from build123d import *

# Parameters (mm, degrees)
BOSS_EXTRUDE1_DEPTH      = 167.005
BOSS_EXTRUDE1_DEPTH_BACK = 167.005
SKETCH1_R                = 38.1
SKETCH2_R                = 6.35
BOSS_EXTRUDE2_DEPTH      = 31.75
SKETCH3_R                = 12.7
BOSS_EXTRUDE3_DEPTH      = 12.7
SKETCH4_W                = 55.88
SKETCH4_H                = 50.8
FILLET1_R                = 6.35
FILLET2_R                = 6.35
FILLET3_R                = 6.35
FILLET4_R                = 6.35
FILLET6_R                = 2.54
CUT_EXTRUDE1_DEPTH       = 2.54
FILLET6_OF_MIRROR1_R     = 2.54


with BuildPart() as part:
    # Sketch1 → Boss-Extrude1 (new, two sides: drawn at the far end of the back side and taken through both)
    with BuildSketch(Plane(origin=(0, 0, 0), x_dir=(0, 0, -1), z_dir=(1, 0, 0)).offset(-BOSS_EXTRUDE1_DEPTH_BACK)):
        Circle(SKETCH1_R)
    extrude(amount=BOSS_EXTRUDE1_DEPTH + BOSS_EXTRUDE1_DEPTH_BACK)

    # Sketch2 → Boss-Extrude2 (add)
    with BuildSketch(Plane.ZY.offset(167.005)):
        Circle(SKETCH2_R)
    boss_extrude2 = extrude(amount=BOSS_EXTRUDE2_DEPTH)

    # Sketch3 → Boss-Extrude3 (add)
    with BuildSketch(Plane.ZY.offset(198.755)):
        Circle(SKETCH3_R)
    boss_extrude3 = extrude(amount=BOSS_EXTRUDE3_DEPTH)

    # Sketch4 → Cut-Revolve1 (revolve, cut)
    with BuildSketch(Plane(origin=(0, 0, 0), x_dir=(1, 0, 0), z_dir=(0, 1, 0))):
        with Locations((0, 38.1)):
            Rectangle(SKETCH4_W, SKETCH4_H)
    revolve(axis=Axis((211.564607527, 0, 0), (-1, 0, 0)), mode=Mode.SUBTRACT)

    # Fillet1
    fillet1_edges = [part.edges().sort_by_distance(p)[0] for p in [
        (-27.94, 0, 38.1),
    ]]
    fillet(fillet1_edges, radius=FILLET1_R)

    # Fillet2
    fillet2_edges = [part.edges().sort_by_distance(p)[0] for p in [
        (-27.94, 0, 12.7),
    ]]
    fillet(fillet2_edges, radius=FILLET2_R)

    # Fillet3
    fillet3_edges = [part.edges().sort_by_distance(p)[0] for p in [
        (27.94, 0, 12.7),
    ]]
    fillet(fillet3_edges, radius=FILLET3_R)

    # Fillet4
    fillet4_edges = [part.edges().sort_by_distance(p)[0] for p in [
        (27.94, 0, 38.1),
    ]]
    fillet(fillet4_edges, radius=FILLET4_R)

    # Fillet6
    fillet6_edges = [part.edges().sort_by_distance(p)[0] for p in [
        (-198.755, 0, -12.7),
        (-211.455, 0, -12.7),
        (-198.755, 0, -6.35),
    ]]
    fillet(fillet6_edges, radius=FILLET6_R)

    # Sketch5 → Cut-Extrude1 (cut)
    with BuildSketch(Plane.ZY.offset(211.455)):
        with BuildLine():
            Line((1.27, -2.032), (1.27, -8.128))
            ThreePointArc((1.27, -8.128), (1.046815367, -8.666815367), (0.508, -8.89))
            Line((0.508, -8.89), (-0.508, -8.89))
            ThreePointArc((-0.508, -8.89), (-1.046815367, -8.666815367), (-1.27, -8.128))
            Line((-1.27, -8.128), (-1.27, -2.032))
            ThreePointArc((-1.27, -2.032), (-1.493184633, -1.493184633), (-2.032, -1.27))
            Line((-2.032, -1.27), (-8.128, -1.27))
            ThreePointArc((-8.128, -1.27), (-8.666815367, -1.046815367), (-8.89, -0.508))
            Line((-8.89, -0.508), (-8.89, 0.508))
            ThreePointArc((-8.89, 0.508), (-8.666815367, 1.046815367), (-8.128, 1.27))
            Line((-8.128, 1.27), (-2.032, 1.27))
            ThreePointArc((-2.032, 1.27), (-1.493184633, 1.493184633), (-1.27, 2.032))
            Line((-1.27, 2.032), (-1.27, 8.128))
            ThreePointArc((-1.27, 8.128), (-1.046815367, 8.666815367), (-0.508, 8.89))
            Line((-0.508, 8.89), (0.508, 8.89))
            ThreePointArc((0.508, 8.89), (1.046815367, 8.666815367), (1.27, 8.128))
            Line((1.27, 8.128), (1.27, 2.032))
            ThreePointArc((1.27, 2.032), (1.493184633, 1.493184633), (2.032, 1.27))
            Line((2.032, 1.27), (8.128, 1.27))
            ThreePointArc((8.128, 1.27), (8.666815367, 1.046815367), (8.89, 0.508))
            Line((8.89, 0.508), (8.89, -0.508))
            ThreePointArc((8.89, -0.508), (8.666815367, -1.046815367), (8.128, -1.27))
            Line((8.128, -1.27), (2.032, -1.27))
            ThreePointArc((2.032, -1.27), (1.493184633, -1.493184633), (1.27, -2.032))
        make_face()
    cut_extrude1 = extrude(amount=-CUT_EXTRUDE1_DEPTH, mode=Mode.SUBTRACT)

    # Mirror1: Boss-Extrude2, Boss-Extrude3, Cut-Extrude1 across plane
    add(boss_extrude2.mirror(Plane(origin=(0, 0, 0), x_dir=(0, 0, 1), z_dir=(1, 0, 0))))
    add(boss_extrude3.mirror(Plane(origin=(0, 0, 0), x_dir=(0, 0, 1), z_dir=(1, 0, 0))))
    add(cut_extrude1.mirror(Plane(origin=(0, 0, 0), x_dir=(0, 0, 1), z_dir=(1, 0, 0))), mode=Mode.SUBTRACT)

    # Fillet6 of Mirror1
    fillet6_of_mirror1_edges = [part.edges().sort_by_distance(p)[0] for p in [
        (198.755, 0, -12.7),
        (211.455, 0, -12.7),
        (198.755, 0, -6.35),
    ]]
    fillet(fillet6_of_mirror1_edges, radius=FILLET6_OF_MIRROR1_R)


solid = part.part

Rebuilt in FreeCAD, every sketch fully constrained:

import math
import FreeCAD as App
import Part
import Sketcher
from FreeCAD import Vector
Q = App.Units.Quantity


def edges_at(feature, points):
    """Names of the edges that pass closest to the given points."""
    edges = feature.Shape.Edges
    near = lambda p: min(range(len(edges)), key=lambda i: edges[i].distToShape(Part.Vertex(*p))[0])
    return sorted({f"Edge{near(p) + 1}" for p in points})

doc = App.newDocument("Part")
params = doc.addObject("Spreadsheet::Sheet", "Params")
for row, (alias, value) in enumerate([
    ("sketch1_diameter", "3 in"),
    ("pad1_length", "6.575 in"),
    ("pad1_length2", "6.575 in"),
    ("sketch2_diameter", "0.5 in"),
    ("pad2_length", "1.25 in"),
    ("sketch3_diameter", "1 in"),
    ("pad3_length", "0.5 in"),
    ("sketch4_height", "2 in"),
    ("sketch4_width", "2.2 in"),
    ("groove_angle", "360 deg"),
    ("fillet_radius", "0.25 in"),
    ("fillet2_radius", "0.25 in"),
    ("fillet3_radius", "0.25 in"),
    ("fillet4_radius", "0.25 in"),
    ("fillet5_radius", "0.1 in"),
    ("sketch5_radius", "0.03 in"),
    ("sketch5_width", "0.24 in"),
    ("sketch5_width2", "0.04 in"),
    ("pocket1_length", "0.1 in"),
    ("fillet6_radius", "0.1 in"),
], start=1):
    params.set(f"A{row}", alias)
    params.set(f"B{row}", "=" + value)
    params.setAlias(f"B{row}", alias)

body = doc.addObject("PartDesign::Body", "Body")

# Sketch on YZ plane
sketch1 = body.newObject("Sketcher::SketchObject", "Sketch")
sketch1.AttachmentSupport = (doc.getObject("YZ_Plane"), [""])
sketch1.MapMode = "FlatFace"
sketch1.addGeometry(Part.Circle(Vector(0, 0, 0), Vector(0, 0, 1), 38), False)
sketch1.addConstraint(Sketcher.Constraint("Coincident", 0, 3, -1, 1))
sketch1.addConstraint(Sketcher.Constraint("Diameter", 0, Q("3 in")))
sketch1.setExpression("Constraints[1]", "Params.sketch1_diameter")
pad1 = body.newObject("PartDesign::Pad", "Pad")
pad1.Profile = sketch1
pad1.Type = "TwoLengths"
pad1.setExpression("Length", "Params.pad1_length")
pad1.setExpression("Length2", "Params.pad1_length2")

# Sketch on YZ plane
sketch2 = body.newObject("Sketcher::SketchObject", "Sketch001")
sketch2.AttachmentSupport = (doc.getObject("YZ_Plane"), [""])
sketch2.MapMode = "FlatFace"
sketch2.AttachmentOffset = App.Placement(Vector(0, 0, -6.575 * 25.4), App.Rotation())
sketch2.addGeometry(Part.Circle(Vector(0, 0, 0), Vector(0, 0, 1), 6), False)
sketch2.addConstraint(Sketcher.Constraint("Coincident", 0, 3, -1, 1))
sketch2.addConstraint(Sketcher.Constraint("Diameter", 0, Q("0.5 in")))
sketch2.setExpression("Constraints[1]", "Params.sketch2_diameter")
pad2 = body.newObject("PartDesign::Pad", "Pad001")
pad2.Profile = sketch2
pad2.setExpression("Length", "Params.pad2_length")
pad2.Reversed = True

# Sketch on YZ plane
sketch3 = body.newObject("Sketcher::SketchObject", "Sketch002")
sketch3.AttachmentSupport = (doc.getObject("YZ_Plane"), [""])
sketch3.MapMode = "FlatFace"
sketch3.AttachmentOffset = App.Placement(Vector(0, 0, -7.825 * 25.4), App.Rotation())
sketch3.addGeometry(Part.Circle(Vector(0, 0, 0), Vector(0, 0, 1), 13), False)
sketch3.addConstraint(Sketcher.Constraint("Coincident", 0, 3, -1, 1))
sketch3.addConstraint(Sketcher.Constraint("Diameter", 0, Q("1 in")))
sketch3.setExpression("Constraints[1]", "Params.sketch3_diameter")
pad3 = body.newObject("PartDesign::Pad", "Pad002")
pad3.Profile = sketch3
pad3.setExpression("Length", "Params.pad3_length")
pad3.Reversed = True

# Sketch on XZ plane
sketch4 = body.newObject("Sketcher::SketchObject", "Sketch003")
sketch4.AttachmentSupport = (doc.getObject("XZ_Plane"), [""])
sketch4.MapMode = "FlatFace"
sketch4.addGeometry(Part.LineSegment(Vector(-28, -64, 0), Vector(-28, -13, 0)), False)
sketch4.addGeometry(Part.LineSegment(Vector(-28, -13, 0), Vector(28, -13, 0)), False)
sketch4.addGeometry(Part.LineSegment(Vector(28, -13, 0), Vector(28, -64, 0)), False)
sketch4.addGeometry(Part.LineSegment(Vector(28, -64, 0), Vector(-28, -64, 0)), False)
sketch4.addConstraint(Sketcher.Constraint("Coincident", 0, 2, 1, 1))
sketch4.addConstraint(Sketcher.Constraint("Coincident", 1, 2, 2, 1))
sketch4.addConstraint(Sketcher.Constraint("Coincident", 2, 2, 3, 1))
sketch4.addConstraint(Sketcher.Constraint("Coincident", 3, 2, 0, 1))
sketch4.addConstraint(Sketcher.Constraint("Vertical", 0))
sketch4.addConstraint(Sketcher.Constraint("Horizontal", 1))
sketch4.addConstraint(Sketcher.Constraint("Vertical", 2))
sketch4.addConstraint(Sketcher.Constraint("Horizontal", 3))
sketch4.addConstraint(Sketcher.Constraint("DistanceY", 0, 1, 0, 2, Q("2 in")))
sketch4.addConstraint(Sketcher.Constraint("DistanceX", 1, 1, 1, 2, Q("2.2 in")))
sketch4.addConstraint(Sketcher.Constraint("DistanceX", 0, 2, -1, 1, Q("1.1 in")))
sketch4.addConstraint(Sketcher.Constraint("DistanceY", 0, 2, -1, 1, Q("0.5 in")))
sketch4.setExpression("Constraints[8]", "Params.sketch4_height")
sketch4.setExpression("Constraints[9]", "Params.sketch4_width")
groove = body.newObject("PartDesign::Groove", "Groove")
groove.Profile = sketch4
groove.ReferenceAxis = (sketch4, ["H_Axis"])
groove.setExpression("Angle", "Params.groove_angle")
doc.recompute()

fillet = body.newObject("PartDesign::Fillet", "Fillet")
fillet.Base = (groove, edges_at(groove, [(-27.94, 0, 38.1)]))
fillet.setExpression("Radius", "Params.fillet_radius")
doc.recompute()

fillet2 = body.newObject("PartDesign::Fillet", "Fillet001")
fillet2.Base = (fillet, edges_at(fillet, [(-27.94, 0, 12.7)]))
fillet2.setExpression("Radius", "Params.fillet2_radius")
doc.recompute()

fillet3 = body.newObject("PartDesign::Fillet", "Fillet002")
fillet3.Base = (fillet2, edges_at(fillet2, [(27.94, 0, 12.7)]))
fillet3.setExpression("Radius", "Params.fillet3_radius")
doc.recompute()

fillet4 = body.newObject("PartDesign::Fillet", "Fillet003")
fillet4.Base = (fillet3, edges_at(fillet3, [(27.94, 0, 38.1)]))
fillet4.setExpression("Radius", "Params.fillet4_radius")
doc.recompute()

fillet5 = body.newObject("PartDesign::Fillet", "Fillet004")
fillet5.Base = (fillet4, edges_at(fillet4, [(-198.755, 0, -12.7), (-211.455, 0, -12.7), (-198.755, 0, -6.35)]))
fillet5.setExpression("Radius", "Params.fillet5_radius")

# Sketch on YZ plane
sketch5 = body.newObject("Sketcher::SketchObject", "Sketch004")
sketch5.AttachmentSupport = (doc.getObject("YZ_Plane"), [""])
sketch5.MapMode = "FlatFace"
sketch5.AttachmentOffset = App.Placement(Vector(0, 0, -8.325 * 25.4), App.Rotation())
sketch5.addGeometry(Part.LineSegment(Vector(-8.1, 1.3, 0), Vector(-2, 1.3, 0)), False)
sketch5.addGeometry(Part.ArcOfCircle(Part.Circle(Vector(-2, 2, 0), Vector(0, 0, 1), 0.8), math.radians(-90), math.radians(0)), False)
sketch5.addGeometry(Part.LineSegment(Vector(-1.3, 2, 0), Vector(-1.3, 8.1, 0)), False)
sketch5.addGeometry(Part.ArcOfCircle(Part.Circle(Vector(-0.5, 8.1, 0), Vector(0, 0, 1), 0.8), math.radians(90), math.radians(180)), False)
sketch5.addGeometry(Part.LineSegment(Vector(-0.5, 8.9, 0), Vector(0.5, 8.9, 0)), False)
sketch5.addGeometry(Part.ArcOfCircle(Part.Circle(Vector(0.5, 8.1, 0), Vector(0, 0, 1), 0.8), math.radians(0), math.radians(90)), False)
sketch5.addGeometry(Part.LineSegment(Vector(1.3, 8.1, 0), Vector(1.3, 2, 0)), False)
sketch5.addGeometry(Part.ArcOfCircle(Part.Circle(Vector(2, 2, 0), Vector(0, 0, 1), 0.8), math.radians(-180), math.radians(-90)), False)
sketch5.addGeometry(Part.LineSegment(Vector(2, 1.3, 0), Vector(8.1, 1.3, 0)), False)
sketch5.addGeometry(Part.ArcOfCircle(Part.Circle(Vector(8.1, 0.5, 0), Vector(0, 0, 1), 0.8), math.radians(0), math.radians(90)), False)
sketch5.addGeometry(Part.LineSegment(Vector(8.9, 0.5, 0), Vector(8.9, -0.5, 0)), False)
sketch5.addGeometry(Part.ArcOfCircle(Part.Circle(Vector(8.1, -0.5, 0), Vector(0, 0, 1), 0.8), math.radians(-90), math.radians(0)), False)
sketch5.addGeometry(Part.LineSegment(Vector(8.1, -1.3, 0), Vector(2, -1.3, 0)), False)
sketch5.addGeometry(Part.ArcOfCircle(Part.Circle(Vector(2, -2, 0), Vector(0, 0, 1), 0.8), math.radians(90), math.radians(180)), False)
sketch5.addGeometry(Part.LineSegment(Vector(1.3, -2, 0), Vector(1.3, -8.1, 0)), False)
sketch5.addGeometry(Part.ArcOfCircle(Part.Circle(Vector(0.5, -8.1, 0), Vector(0, 0, 1), 0.8), math.radians(-90), math.radians(0)), False)
sketch5.addGeometry(Part.LineSegment(Vector(0.5, -8.9, 0), Vector(-0.5, -8.9, 0)), False)
sketch5.addGeometry(Part.ArcOfCircle(Part.Circle(Vector(-0.5, -8.1, 0), Vector(0, 0, 1), 0.8), math.radians(-180), math.radians(-90)), False)
sketch5.addGeometry(Part.LineSegment(Vector(-1.3, -8.1, 0), Vector(-1.3, -2, 0)), False)
sketch5.addGeometry(Part.ArcOfCircle(Part.Circle(Vector(-2, -2, 0), Vector(0, 0, 1), 0.8), math.radians(0), math.radians(90)), False)
sketch5.addGeometry(Part.LineSegment(Vector(-2, -1.3, 0), Vector(-8.1, -1.3, 0)), False)
sketch5.addGeometry(Part.ArcOfCircle(Part.Circle(Vector(-8.1, -0.5, 0), Vector(0, 0, 1), 0.8), math.radians(-180), math.radians(-90)), False)
sketch5.addGeometry(Part.LineSegment(Vector(-8.9, -0.5, 0), Vector(-8.9, 0.5, 0)), False)
sketch5.addGeometry(Part.ArcOfCircle(Part.Circle(Vector(-8.1, 0.5, 0), Vector(0, 0, 1), 0.8), math.radians(90), math.radians(180)), False)
sketch5.addConstraint(Sketcher.Constraint("Tangent", 0, 2, 1, 1))
sketch5.addConstraint(Sketcher.Constraint("Tangent", 1, 2, 2, 1))
sketch5.addConstraint(Sketcher.Constraint("Tangent", 2, 2, 3, 2))
sketch5.addConstraint(Sketcher.Constraint("Tangent", 3, 1, 4, 1))
sketch5.addConstraint(Sketcher.Constraint("Tangent", 4, 2, 5, 2))
sketch5.addConstraint(Sketcher.Constraint("Tangent", 5, 1, 6, 1))
sketch5.addConstraint(Sketcher.Constraint("Tangent", 6, 2, 7, 1))
sketch5.addConstraint(Sketcher.Constraint("Tangent", 7, 2, 8, 1))
sketch5.addConstraint(Sketcher.Constraint("Tangent", 8, 2, 9, 2))
sketch5.addConstraint(Sketcher.Constraint("Tangent", 9, 1, 10, 1))
sketch5.addConstraint(Sketcher.Constraint("Tangent", 10, 2, 11, 2))
sketch5.addConstraint(Sketcher.Constraint("Tangent", 11, 1, 12, 1))
sketch5.addConstraint(Sketcher.Constraint("Tangent", 12, 2, 13, 1))
sketch5.addConstraint(Sketcher.Constraint("Tangent", 13, 2, 14, 1))
sketch5.addConstraint(Sketcher.Constraint("Tangent", 14, 2, 15, 2))
sketch5.addConstraint(Sketcher.Constraint("Tangent", 15, 1, 16, 1))
sketch5.addConstraint(Sketcher.Constraint("Tangent", 16, 2, 17, 2))
sketch5.addConstraint(Sketcher.Constraint("Tangent", 17, 1, 18, 1))
sketch5.addConstraint(Sketcher.Constraint("Tangent", 18, 2, 19, 1))
sketch5.addConstraint(Sketcher.Constraint("Tangent", 19, 2, 20, 1))
sketch5.addConstraint(Sketcher.Constraint("Tangent", 20, 2, 21, 2))
sketch5.addConstraint(Sketcher.Constraint("Tangent", 21, 1, 22, 1))
sketch5.addConstraint(Sketcher.Constraint("Tangent", 22, 2, 23, 2))
sketch5.addConstraint(Sketcher.Constraint("Tangent", 23, 1, 0, 1))
sketch5.addConstraint(Sketcher.Constraint("Horizontal", 0))
sketch5.addConstraint(Sketcher.Constraint("Vertical", 2))
sketch5.addConstraint(Sketcher.Constraint("Horizontal", 4))
sketch5.addConstraint(Sketcher.Constraint("Vertical", 6))
sketch5.addConstraint(Sketcher.Constraint("Horizontal", 8))
sketch5.addConstraint(Sketcher.Constraint("Vertical", 10))
sketch5.addConstraint(Sketcher.Constraint("Horizontal", 12))
sketch5.addConstraint(Sketcher.Constraint("Vertical", 14))
sketch5.addConstraint(Sketcher.Constraint("Horizontal", 16))
sketch5.addConstraint(Sketcher.Constraint("Vertical", 18))
sketch5.addConstraint(Sketcher.Constraint("Horizontal", 20))
sketch5.addConstraint(Sketcher.Constraint("Vertical", 22))
sketch5.addConstraint(Sketcher.Constraint("Equal", 1, 3))
sketch5.addConstraint(Sketcher.Constraint("Equal", 3, 5))
sketch5.addConstraint(Sketcher.Constraint("Equal", 5, 7))
sketch5.addConstraint(Sketcher.Constraint("Equal", 7, 9))
sketch5.addConstraint(Sketcher.Constraint("Equal", 9, 11))
sketch5.addConstraint(Sketcher.Constraint("Equal", 11, 13))
sketch5.addConstraint(Sketcher.Constraint("Equal", 13, 15))
sketch5.addConstraint(Sketcher.Constraint("Equal", 15, 17))
sketch5.addConstraint(Sketcher.Constraint("Equal", 17, 19))
sketch5.addConstraint(Sketcher.Constraint("Equal", 19, 21))
sketch5.addConstraint(Sketcher.Constraint("Equal", 21, 23))
sketch5.addConstraint(Sketcher.Constraint("Symmetric", 1, 3, 13, 3, -1, 1))
sketch5.addConstraint(Sketcher.Constraint("Symmetric", 5, 3, 17, 3, -1, 1))
sketch5.addConstraint(Sketcher.Constraint("Symmetric", 9, 3, 21, 3, -1, 1))
sketch5.addConstraint(Sketcher.Constraint("Symmetric", 1, 3, 7, 3, -2))
sketch5.addConstraint(Sketcher.Constraint("Equal", 20, 2))
sketch5.addConstraint(Sketcher.Constraint("Equal", 16, 10))
sketch5.addConstraint(Sketcher.Constraint("Radius", 1, Q("0.03 in")))
sketch5.addConstraint(Sketcher.Constraint("DistanceX", 0, 1, 0, 2, Q("0.24 in")))
sketch5.addConstraint(Sketcher.Constraint("DistanceX", 4, 1, 4, 2, Q("0.04 in")))
sketch5.setExpression("Constraints[53]", "Params.sketch5_radius")
sketch5.setExpression("Constraints[54]", "Params.sketch5_width")
sketch5.setExpression("Constraints[55]", "Params.sketch5_width2")
pocket1 = body.newObject("PartDesign::Pocket", "Pocket")
pocket1.Profile = sketch5
pocket1.setExpression("Length", "Params.pocket1_length")
pocket1.Reversed = True
doc.recompute()

mirrored = body.newObject("PartDesign::Mirrored", "Mirrored")
mirrored.Originals = [pad2, pad3, pocket1]
mirrored.MirrorPlane = (doc.getObject("YZ_Plane"), [""])
body.Tip = mirrored
doc.recompute()

fillet6 = body.newObject("PartDesign::Fillet", "Fillet005")
fillet6.Base = (mirrored, edges_at(mirrored, [(198.755, 0, -12.7), (211.455, 0, -12.7), (198.755, 0, -6.35)]))
fillet6.setExpression("Radius", "Params.fillet6_radius")

doc.recompute()
